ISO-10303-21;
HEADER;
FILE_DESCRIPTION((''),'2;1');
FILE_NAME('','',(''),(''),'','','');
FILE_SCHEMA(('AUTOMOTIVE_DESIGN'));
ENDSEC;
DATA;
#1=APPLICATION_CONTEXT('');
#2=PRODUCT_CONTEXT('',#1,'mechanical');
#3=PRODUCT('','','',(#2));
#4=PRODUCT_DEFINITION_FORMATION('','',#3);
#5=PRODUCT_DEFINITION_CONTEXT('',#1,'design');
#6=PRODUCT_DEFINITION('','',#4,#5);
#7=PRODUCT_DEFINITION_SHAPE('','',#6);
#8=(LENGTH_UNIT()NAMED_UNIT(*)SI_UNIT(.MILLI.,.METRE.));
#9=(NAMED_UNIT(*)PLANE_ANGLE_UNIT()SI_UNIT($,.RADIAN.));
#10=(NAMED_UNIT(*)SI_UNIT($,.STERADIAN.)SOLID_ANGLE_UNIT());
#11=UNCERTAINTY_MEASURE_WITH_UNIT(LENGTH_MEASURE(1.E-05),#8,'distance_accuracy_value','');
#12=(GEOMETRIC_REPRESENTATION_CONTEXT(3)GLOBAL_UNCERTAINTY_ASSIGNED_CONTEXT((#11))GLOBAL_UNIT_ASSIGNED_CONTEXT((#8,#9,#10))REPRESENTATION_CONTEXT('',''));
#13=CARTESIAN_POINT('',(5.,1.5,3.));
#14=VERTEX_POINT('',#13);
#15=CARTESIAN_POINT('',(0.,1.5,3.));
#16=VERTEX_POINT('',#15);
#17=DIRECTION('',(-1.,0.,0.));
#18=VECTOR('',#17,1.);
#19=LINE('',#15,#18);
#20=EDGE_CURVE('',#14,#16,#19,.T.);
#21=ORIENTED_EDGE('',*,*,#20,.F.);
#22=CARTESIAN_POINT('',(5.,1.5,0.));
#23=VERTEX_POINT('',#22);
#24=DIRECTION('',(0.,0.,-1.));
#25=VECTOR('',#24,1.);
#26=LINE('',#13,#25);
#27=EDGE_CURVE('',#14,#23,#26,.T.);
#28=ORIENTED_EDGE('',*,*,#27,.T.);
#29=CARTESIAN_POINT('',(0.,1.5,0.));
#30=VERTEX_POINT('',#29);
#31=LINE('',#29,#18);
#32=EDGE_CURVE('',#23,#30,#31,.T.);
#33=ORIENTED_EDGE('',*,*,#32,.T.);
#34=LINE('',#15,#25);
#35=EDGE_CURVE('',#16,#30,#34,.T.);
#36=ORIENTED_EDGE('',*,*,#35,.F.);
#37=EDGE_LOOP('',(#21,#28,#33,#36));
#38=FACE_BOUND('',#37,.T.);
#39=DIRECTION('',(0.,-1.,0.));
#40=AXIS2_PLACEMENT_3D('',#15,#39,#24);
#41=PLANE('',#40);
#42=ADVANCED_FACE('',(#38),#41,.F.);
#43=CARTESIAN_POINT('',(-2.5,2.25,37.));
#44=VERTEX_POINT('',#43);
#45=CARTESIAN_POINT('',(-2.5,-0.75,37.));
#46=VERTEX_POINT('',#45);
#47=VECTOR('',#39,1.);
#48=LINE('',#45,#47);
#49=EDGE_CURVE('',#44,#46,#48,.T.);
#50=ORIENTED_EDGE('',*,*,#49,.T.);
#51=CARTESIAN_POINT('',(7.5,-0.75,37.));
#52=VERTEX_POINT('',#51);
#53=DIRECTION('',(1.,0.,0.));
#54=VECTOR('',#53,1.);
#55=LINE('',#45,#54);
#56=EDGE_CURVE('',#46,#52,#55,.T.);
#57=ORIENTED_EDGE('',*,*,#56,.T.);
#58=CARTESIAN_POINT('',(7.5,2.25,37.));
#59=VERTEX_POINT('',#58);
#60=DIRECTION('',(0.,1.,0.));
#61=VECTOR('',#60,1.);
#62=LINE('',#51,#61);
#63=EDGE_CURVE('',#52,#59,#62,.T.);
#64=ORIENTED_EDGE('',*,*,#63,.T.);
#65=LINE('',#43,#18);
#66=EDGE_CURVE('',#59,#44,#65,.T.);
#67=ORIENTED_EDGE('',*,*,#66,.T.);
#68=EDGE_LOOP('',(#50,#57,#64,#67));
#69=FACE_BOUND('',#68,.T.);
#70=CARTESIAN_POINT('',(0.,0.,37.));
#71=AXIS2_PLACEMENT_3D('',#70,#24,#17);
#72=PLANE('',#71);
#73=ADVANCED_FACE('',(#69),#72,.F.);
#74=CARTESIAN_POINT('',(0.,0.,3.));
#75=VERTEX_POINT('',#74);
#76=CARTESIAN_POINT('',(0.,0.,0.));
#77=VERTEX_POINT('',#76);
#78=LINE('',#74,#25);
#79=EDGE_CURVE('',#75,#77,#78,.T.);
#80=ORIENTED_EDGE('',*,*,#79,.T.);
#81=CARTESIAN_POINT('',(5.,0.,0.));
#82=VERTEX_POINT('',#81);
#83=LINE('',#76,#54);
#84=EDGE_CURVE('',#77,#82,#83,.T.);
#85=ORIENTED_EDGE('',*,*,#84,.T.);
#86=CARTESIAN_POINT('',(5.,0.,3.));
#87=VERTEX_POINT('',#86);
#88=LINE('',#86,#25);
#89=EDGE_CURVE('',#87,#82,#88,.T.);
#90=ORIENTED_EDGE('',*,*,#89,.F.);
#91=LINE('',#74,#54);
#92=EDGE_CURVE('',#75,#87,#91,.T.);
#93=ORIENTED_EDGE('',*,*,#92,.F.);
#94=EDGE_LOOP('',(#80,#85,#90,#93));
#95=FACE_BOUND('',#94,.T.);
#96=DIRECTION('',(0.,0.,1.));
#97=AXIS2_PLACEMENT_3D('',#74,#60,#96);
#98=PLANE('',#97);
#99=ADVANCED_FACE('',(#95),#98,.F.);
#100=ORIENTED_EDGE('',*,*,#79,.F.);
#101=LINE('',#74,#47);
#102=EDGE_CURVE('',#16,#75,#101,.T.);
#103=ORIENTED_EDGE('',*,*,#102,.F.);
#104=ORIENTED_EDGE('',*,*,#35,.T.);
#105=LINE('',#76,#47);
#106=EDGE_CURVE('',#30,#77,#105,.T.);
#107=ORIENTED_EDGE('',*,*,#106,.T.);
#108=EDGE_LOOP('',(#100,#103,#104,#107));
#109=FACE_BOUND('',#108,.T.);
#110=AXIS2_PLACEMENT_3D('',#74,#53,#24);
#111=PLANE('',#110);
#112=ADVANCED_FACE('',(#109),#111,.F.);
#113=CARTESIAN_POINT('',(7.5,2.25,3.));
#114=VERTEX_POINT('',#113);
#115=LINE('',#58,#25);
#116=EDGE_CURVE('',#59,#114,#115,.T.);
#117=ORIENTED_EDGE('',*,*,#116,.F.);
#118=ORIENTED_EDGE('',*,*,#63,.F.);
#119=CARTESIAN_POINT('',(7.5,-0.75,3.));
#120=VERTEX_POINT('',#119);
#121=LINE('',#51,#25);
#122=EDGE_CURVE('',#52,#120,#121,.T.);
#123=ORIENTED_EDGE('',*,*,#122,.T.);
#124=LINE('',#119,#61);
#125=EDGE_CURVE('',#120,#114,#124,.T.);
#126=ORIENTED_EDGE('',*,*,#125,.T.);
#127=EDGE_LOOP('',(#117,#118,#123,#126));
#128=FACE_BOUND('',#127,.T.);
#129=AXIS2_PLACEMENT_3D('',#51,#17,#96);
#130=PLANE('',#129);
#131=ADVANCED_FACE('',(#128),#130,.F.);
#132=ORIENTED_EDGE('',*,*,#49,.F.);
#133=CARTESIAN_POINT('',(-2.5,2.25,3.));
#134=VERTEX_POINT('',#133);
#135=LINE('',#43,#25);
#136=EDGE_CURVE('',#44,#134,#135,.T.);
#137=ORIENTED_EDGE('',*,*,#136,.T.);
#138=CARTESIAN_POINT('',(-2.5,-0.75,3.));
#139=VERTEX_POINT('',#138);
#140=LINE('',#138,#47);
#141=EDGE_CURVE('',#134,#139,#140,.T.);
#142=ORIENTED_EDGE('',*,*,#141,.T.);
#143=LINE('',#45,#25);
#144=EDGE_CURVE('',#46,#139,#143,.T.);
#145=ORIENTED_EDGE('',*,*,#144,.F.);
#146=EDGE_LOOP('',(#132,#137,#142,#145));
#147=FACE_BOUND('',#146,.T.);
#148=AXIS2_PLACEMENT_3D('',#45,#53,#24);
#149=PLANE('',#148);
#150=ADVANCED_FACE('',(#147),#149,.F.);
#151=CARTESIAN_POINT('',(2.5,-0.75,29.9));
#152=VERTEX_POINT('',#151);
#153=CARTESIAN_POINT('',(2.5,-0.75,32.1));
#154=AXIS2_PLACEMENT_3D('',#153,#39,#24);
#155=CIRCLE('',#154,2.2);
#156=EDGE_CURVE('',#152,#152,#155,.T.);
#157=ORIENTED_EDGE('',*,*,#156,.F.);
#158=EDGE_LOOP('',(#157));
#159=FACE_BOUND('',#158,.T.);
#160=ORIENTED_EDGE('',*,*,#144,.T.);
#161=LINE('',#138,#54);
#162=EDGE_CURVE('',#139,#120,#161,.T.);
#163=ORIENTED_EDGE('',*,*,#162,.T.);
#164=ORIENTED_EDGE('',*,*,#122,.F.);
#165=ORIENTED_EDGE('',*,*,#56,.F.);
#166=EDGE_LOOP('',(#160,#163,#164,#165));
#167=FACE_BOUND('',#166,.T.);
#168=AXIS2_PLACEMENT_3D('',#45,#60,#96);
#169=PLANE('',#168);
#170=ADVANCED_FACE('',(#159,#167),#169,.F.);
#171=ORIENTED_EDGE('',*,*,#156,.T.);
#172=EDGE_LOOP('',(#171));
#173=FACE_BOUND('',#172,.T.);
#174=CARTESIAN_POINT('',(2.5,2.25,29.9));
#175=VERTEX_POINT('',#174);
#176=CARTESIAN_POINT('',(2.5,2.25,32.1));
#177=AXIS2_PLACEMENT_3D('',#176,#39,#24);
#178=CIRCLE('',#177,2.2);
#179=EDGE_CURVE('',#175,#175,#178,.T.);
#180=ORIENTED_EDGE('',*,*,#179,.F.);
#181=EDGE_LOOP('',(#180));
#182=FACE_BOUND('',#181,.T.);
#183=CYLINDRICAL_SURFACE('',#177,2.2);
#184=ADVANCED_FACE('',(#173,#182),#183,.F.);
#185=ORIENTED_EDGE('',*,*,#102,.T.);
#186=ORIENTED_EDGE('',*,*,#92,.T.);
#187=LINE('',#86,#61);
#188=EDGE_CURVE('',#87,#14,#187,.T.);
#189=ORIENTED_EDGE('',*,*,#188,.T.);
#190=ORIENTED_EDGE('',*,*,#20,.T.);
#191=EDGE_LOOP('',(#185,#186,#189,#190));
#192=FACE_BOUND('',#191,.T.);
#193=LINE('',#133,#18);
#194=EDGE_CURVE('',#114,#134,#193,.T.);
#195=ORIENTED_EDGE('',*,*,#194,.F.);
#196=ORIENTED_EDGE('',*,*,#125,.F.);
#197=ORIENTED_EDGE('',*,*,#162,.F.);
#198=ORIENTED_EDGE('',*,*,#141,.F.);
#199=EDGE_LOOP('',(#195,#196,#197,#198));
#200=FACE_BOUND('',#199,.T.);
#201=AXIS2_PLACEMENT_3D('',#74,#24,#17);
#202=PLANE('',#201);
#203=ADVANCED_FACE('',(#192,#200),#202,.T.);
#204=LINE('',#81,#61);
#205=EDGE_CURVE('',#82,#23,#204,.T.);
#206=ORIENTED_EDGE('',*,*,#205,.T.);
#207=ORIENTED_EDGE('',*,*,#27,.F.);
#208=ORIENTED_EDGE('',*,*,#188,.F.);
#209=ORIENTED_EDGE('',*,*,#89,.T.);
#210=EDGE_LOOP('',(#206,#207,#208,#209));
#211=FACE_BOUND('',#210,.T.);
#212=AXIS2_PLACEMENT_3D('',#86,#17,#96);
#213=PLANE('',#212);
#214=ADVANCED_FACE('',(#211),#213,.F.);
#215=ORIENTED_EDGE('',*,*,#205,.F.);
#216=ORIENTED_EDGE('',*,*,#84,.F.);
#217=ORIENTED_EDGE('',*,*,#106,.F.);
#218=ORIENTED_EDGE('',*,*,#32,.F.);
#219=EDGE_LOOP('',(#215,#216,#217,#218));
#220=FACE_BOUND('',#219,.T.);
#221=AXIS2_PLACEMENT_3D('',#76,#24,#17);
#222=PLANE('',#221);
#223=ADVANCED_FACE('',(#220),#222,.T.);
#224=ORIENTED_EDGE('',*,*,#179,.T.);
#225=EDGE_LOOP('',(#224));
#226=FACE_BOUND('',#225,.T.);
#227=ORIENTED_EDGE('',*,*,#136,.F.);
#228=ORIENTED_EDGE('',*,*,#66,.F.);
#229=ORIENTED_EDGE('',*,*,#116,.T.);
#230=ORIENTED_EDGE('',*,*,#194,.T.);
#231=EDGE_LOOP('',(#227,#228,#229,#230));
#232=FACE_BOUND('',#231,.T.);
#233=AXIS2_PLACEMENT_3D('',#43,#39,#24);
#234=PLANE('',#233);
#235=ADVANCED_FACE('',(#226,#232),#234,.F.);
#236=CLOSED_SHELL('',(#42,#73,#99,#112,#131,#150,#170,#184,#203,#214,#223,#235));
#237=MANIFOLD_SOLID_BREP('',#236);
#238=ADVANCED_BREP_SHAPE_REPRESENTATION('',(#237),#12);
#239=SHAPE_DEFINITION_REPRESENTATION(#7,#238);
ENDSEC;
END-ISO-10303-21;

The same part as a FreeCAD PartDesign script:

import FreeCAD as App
import Part
import Sketcher
Q = App.Units.Quantity


def add_polygon(sketch, points):
    """Adds a closed chain of lines whose ends are joined by coincident constraints."""
    first, n = sketch.GeometryCount, len(points)
    for a, b in zip(points, points[1:] + points[:1]):
        sketch.addGeometry(Part.LineSegment(App.Vector(*a, 0), App.Vector(*b, 0)), False)
    for i in range(n):
        sketch.addConstraint(Sketcher.Constraint("Coincident", first + i, 2, first + (i + 1) % n, 1))

doc = App.newDocument("Part")
params = doc.addObject("Spreadsheet::Sheet", "Params")
for row, (alias, value) in enumerate([
    ("sketch1_width", "5 mm"),
    ("sketch1_height", "1.5 mm"),
    ("pad1_length", "3 mm"),
    ("sketch2_width", "10 mm"),
    ("sketch2_height", "3 mm"),
    ("pad2_length", "34 mm"),
    ("sketch3_diameter", "4.4 mm"),
], start=1):
    params.set(f"A{row}", alias)
    params.set(f"B{row}", "=" + value)
    params.setAlias(f"B{row}", alias)

body = doc.addObject("PartDesign::Body", "Body")

sketch1 = body.newObject("Sketcher::SketchObject", "Sketch")
sketch1.AttachmentSupport = (doc.getObject("XY_Plane"), [""])
sketch1.MapMode = "FlatFace"
add_polygon(sketch1, [(0, 1.5), (0, 0), (5, 0), (5, 1.5)])
sketch1.addConstraint(Sketcher.Constraint("Vertical", 0))
sketch1.addConstraint(Sketcher.Constraint("Horizontal", 1))
sketch1.addConstraint(Sketcher.Constraint("Vertical", 2))
sketch1.addConstraint(Sketcher.Constraint("Horizontal", 3))
sketch1.addConstraint(Sketcher.Constraint("Coincident", 0, 2, -1, 1))
sketch1.addConstraint(Sketcher.Constraint("DistanceX", 1, 1, 1, 2, Q("5 mm")))
sketch1.addConstraint(Sketcher.Constraint("DistanceY", 0, 2, 0, 1, Q("1.5 mm")))
sketch1.setExpression("Constraints[9]", "Params.sketch1_width")
sketch1.setExpression("Constraints[10]", "Params.sketch1_height")
pad1 = body.newObject("PartDesign::Pad", "Pad")
pad1.Profile = sketch1
pad1.setExpression("Length", "Params.pad1_length")

sketch2 = body.newObject("Sketcher::SketchObject", "Sketch001")
sketch2.AttachmentSupport = (doc.getObject("XY_Plane"), [""])
sketch2.MapMode = "FlatFace"
sketch2.AttachmentOffset = App.Placement(App.Vector(0, 0, 3), App.Rotation())
add_polygon(sketch2, [(-2.5, 2.2), (-2.5, -0.8), (7.5, -0.8), (7.5, 2.2)])
sketch2.addConstraint(Sketcher.Constraint("Vertical", 0))
sketch2.addConstraint(Sketcher.Constraint("Horizontal", 1))
sketch2.addConstraint(Sketcher.Constraint("Vertical", 2))
sketch2.addConstraint(Sketcher.Constraint("Horizontal", 3))
sketch2.addConstraint(Sketcher.Constraint("DistanceX", 1, 1, 1, 2, Q("10 mm")))
sketch2.addConstraint(Sketcher.Constraint("DistanceY", 0, 2, 0, 1, Q("3 mm")))
sketch2.addConstraint(Sketcher.Constraint("DistanceX", 0, 2, -1, 1, Q("2.5 mm")))
sketch2.addConstraint(Sketcher.Constraint("DistanceY", 0, 2, -1, 1, Q("0.75 mm")))
sketch2.setExpression("Constraints[8]", "Params.sketch2_width")
sketch2.setExpression("Constraints[9]", "Params.sketch2_height")
pad2 = body.newObject("PartDesign::Pad", "Pad001")
pad2.Profile = sketch2
pad2.setExpression("Length", "Params.pad2_length")

sketch3 = body.newObject("Sketcher::SketchObject", "Sketch002")
sketch3.AttachmentSupport = (doc.getObject("XZ_Plane"), [""])
sketch3.MapMode = "FlatFace"
sketch3.AttachmentOffset = App.Placement(App.Vector(0, 0, 0.75), App.Rotation())
sketch3.addGeometry(Part.Circle(App.Vector(2.5, 32.1, 0), App.Vector(0, 0, 1), 2.2), False)
sketch3.addConstraint(Sketcher.Constraint("Diameter", 0, Q("4.4 mm")))
sketch3.addConstraint(Sketcher.Constraint("DistanceX", -1, 1, 0, 3, Q("2.5 mm")))
sketch3.addConstraint(Sketcher.Constraint("DistanceY", -1, 1, 0, 3, Q("32.1 mm")))
sketch3.setExpression("Constraints[0]", "Params.sketch3_diameter")
pocket1 = body.newObject("PartDesign::Pocket", "Pocket")
pocket1.Profile = sketch3
pocket1.Type = "ThroughAll"

doc.recompute()
